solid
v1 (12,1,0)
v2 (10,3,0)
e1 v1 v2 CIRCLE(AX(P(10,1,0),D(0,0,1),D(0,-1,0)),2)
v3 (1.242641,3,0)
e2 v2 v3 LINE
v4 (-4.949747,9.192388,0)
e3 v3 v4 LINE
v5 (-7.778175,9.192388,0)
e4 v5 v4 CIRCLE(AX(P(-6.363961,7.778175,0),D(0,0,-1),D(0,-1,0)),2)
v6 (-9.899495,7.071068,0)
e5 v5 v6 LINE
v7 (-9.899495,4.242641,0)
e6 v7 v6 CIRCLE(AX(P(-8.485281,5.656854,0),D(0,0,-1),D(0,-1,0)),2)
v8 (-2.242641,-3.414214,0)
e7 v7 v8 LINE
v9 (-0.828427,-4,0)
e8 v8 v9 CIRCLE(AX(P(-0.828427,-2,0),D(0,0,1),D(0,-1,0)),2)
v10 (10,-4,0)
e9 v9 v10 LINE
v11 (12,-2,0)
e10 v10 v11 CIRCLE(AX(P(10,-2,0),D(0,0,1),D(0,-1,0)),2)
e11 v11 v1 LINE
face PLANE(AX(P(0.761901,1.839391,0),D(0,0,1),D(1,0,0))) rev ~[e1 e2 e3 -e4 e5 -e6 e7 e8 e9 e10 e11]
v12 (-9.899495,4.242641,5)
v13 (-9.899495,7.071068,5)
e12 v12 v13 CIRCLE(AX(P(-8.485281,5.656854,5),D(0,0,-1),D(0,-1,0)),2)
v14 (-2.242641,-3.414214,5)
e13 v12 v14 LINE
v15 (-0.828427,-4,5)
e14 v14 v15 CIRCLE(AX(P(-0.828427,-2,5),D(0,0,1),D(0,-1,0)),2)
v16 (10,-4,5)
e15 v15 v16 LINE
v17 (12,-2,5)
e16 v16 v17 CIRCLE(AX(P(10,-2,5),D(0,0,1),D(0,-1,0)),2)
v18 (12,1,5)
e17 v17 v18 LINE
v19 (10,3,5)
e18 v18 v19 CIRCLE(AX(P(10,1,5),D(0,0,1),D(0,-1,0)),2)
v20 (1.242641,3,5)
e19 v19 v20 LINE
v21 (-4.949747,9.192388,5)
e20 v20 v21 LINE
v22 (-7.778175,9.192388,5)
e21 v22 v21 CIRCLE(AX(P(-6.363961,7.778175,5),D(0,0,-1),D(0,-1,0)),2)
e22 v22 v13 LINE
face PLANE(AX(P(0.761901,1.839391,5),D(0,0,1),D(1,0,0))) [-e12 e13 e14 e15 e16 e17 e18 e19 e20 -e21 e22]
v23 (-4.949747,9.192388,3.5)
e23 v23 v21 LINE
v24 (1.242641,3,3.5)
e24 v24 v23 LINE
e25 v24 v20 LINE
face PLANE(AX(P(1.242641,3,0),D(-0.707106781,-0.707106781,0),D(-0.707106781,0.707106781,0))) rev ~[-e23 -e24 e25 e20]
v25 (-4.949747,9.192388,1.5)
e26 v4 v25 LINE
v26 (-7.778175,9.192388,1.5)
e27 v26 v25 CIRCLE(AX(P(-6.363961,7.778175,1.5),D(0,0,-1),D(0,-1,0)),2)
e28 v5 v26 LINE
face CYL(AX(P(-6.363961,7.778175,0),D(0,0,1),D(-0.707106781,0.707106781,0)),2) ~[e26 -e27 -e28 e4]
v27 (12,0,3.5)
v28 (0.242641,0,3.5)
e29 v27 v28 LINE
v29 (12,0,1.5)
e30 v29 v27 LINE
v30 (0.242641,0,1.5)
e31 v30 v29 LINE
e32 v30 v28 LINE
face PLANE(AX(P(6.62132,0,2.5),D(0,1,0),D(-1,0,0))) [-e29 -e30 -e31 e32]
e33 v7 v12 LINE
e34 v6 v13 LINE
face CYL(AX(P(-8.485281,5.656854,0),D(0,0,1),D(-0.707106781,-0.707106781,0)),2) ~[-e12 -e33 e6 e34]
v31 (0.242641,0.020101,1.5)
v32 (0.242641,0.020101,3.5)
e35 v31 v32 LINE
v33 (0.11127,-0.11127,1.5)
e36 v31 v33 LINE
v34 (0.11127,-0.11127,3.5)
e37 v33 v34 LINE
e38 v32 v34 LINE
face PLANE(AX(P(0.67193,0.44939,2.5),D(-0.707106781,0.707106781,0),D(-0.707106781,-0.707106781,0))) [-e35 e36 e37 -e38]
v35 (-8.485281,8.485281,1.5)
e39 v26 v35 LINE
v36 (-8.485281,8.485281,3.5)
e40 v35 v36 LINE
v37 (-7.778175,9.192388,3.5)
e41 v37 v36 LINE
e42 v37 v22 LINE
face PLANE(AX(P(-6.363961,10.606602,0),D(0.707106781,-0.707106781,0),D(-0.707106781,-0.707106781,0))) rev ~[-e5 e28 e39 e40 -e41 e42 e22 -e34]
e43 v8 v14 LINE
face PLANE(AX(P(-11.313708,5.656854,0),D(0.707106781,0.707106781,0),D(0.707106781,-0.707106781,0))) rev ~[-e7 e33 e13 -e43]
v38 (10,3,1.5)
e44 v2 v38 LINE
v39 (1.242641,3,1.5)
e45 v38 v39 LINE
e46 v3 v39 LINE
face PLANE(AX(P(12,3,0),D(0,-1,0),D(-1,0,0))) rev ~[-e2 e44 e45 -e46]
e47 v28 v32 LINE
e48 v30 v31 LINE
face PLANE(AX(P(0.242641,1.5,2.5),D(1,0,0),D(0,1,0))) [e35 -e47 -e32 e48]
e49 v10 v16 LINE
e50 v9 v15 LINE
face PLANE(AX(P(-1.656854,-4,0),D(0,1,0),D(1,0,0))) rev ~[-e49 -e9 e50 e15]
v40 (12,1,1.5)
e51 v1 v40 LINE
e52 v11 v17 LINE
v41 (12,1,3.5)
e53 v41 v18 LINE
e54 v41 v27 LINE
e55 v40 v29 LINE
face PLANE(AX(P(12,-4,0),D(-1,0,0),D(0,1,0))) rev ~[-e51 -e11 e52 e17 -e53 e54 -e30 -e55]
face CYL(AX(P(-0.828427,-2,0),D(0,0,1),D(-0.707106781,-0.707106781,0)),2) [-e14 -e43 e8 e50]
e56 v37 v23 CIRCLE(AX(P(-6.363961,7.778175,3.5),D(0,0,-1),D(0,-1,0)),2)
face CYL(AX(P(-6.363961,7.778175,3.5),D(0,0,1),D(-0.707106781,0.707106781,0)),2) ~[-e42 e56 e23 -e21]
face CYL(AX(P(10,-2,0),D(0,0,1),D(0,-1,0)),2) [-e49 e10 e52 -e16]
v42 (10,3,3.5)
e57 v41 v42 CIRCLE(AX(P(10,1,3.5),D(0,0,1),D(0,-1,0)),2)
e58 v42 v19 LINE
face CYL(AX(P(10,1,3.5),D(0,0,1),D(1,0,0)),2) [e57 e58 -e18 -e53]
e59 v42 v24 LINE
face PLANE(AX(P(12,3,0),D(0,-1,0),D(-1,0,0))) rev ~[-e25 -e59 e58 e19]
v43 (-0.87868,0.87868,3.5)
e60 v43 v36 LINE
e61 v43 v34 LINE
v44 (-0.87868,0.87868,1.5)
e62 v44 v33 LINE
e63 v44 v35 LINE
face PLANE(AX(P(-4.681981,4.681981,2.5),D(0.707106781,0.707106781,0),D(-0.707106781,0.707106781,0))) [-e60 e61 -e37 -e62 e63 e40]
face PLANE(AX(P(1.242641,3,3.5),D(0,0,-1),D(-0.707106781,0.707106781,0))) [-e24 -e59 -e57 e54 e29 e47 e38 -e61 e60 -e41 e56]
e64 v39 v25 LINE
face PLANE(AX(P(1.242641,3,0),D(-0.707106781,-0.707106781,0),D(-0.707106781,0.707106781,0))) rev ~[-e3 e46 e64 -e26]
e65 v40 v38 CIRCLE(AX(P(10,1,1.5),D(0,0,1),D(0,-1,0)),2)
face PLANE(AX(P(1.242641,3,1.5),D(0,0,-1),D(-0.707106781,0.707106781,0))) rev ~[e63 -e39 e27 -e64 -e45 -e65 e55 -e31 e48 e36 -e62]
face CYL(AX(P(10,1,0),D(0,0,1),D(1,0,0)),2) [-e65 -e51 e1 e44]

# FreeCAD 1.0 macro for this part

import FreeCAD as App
import Part
import Sketcher

V = App.Vector
Q = App.Units.Quantity


def edges_at(feature, points):
    """Names of the edges that pass closest to the given points."""
    edges = feature.Shape.Edges
    near = lambda p: min(range(len(edges)), key=lambda i: edges[i].distToShape(Part.Vertex(*p))[0])
    return sorted({f"Edge{near(p) + 1}" for p in points})

doc = App.newDocument("Part")
body = doc.addObject("PartDesign::Body", "Body")

# Sketch on XY plane
sketch1 = body.newObject("Sketcher::SketchObject", "Sketch")
sketch1.AttachmentSupport = (doc.getObject("XY_Plane"), [""])
sketch1.MapMode = "FlatFace"
sketch1.addGeometry(Part.LineSegment(V(-11, 6, 0), V(-2, -4, 0)), False)
sketch1.addGeometry(Part.LineSegment(V(-2, -4, 0), V(12, -4, 0)), False)
sketch1.addGeometry(Part.LineSegment(V(12, -4, 0), V(12, 3, 0)), False)
sketch1.addGeometry(Part.LineSegment(V(12, 3, 0), V(1, 3, 0)), False)
sketch1.addGeometry(Part.LineSegment(V(1, 3, 0), V(-6, 11, 0)), False)
sketch1.addGeometry(Part.LineSegment(V(-6, 11, 0), V(-11, 6, 0)), False)
sketch1.addConstraint(Sketcher.Constraint("Coincident", 0, 2, 1, 1))
sketch1.addConstraint(Sketcher.Constraint("Coincident", 1, 2, 2, 1))
sketch1.addConstraint(Sketcher.Constraint("Coincident", 2, 2, 3, 1))
sketch1.addConstraint(Sketcher.Constraint("Coincident", 3, 2, 4, 1))
sketch1.addConstraint(Sketcher.Constraint("Coincident", 4, 2, 5, 1))
sketch1.addConstraint(Sketcher.Constraint("Coincident", 5, 2, 0, 1))
sketch1.addConstraint(Sketcher.Constraint("Horizontal", 1))
sketch1.addConstraint(Sketcher.Constraint("Vertical", 2))
sketch1.addConstraint(Sketcher.Constraint("Horizontal", 3))
sketch1.addConstraint(Sketcher.Constraint("Parallel", 0, 4))
sketch1.addConstraint(Sketcher.Constraint("Perpendicular", 4, 5))
sketch1.addConstraint(Sketcher.Constraint("DistanceY", 2, 1, 2, 2, 7.0))
sketch1.addConstraint(Sketcher.Constraint("Angle", 0, Q("-45 deg")))
sketch1.addConstraint(Sketcher.Constraint("Distance", 5, 7.0))
sketch1.addConstraint(Sketcher.Constraint("DistanceY", 0, 2, -1, 1, 4.0))
sketch1.addConstraint(Sketcher.Constraint("DistanceX", -1, 1, 1, 2, 12.0))
sketch1.addConstraint(Sketcher.Constraint("DistanceX", 3, 2, 3, 1, 10.757359))
sketch1.addConstraint(Sketcher.Constraint("DistanceY", -1, 1, 4, 2, 10.606602))
pad1 = body.newObject("PartDesign::Pad", "Pad")
pad1.Profile = sketch1
pad1.Length = 5

# Sketch on an angled plane
sketch2 = body.newObject("Sketcher::SketchObject", "Sketch001")
sketch2.Placement = App.Placement(V(2.12132, 2.12132, 0), App.Rotation(V(-0.707106781, 0.707106781, 0), V(0, 0, 0.999999999), V(0.707106781, 0.707106781, 0), "ZXY"))
sketch2.addGeometry(Part.LineSegment(V(1.2, 3.5, 0), V(1.2, 1.5, 0)), False)
sketch2.addGeometry(Part.LineSegment(V(1.2, 1.5, 0), V(12, 1.5, 0)), False)
sketch2.addGeometry(Part.LineSegment(V(12, 1.5, 0), V(12, 3.5, 0)), False)
sketch2.addGeometry(Part.LineSegment(V(12, 3.5, 0), V(1.2, 3.5, 0)), False)
sketch2.addConstraint(Sketcher.Constraint("Coincident", 0, 2, 1, 1))
sketch2.addConstraint(Sketcher.Constraint("Coincident", 1, 2, 2, 1))
sketch2.addConstraint(Sketcher.Constraint("Coincident", 2, 2, 3, 1))
sketch2.addConstraint(Sketcher.Constraint("Coincident", 3, 2, 0, 1))
sketch2.addConstraint(Sketcher.Constraint("Vertical", 0))
sketch2.addConstraint(Sketcher.Constraint("Horizontal", 1))
sketch2.addConstraint(Sketcher.Constraint("Vertical", 2))
sketch2.addConstraint(Sketcher.Constraint("Horizontal", 3))
sketch2.addConstraint(Sketcher.Constraint("DistanceY", 0, 2, 0, 1, 2.0))
sketch2.addConstraint(Sketcher.Constraint("DistanceX", -1, 1, 1, 2, 12.0))
sketch2.addConstraint(Sketcher.Constraint("DistanceY", -1, 1, 0, 2, 1.5))
sketch2.addConstraint(Sketcher.Constraint("DistanceX", 1, 1, 1, 2, 10.757359))
pocket1 = body.newObject("PartDesign::Pocket", "Pocket")
pocket1.Profile = sketch2
pocket1.Length = 3

# Sketch on XZ plane
sketch3 = body.newObject("Sketcher::SketchObject", "Sketch002")
sketch3.AttachmentSupport = (doc.getObject("XZ_Plane"), [""])
sketch3.MapMode = "FlatFace"
sketch3.AttachmentOffset = App.Placement(V(0, 0, -3), App.Rotation())
sketch3.addGeometry(Part.LineSegment(V(12, 3.5, 0), V(12, 1.5, 0)), False)
sketch3.addGeometry(Part.LineSegment(V(12, 1.5, 0), V(1.2, 1.5, 0)), False)
sketch3.addGeometry(Part.LineSegment(V(1.2, 1.5, 0), V(1.2, 3.5, 0)), False)
sketch3.addGeometry(Part.LineSegment(V(1.2, 3.5, 0), V(12, 3.5, 0)), False)
sketch3.addConstraint(Sketcher.Constraint("Coincident", 0, 2, 1, 1))
sketch3.addConstraint(Sketcher.Constraint("Coincident", 1, 2, 2, 1))
sketch3.addConstraint(Sketcher.Constraint("Coincident", 2, 2, 3, 1))
sketch3.addConstraint(Sketcher.Constraint("Coincident", 3, 2, 0, 1))
sketch3.addConstraint(Sketcher.Constraint("Vertical", 0))
sketch3.addConstraint(Sketcher.Constraint("Horizontal", 1))
sketch3.addConstraint(Sketcher.Constraint("Vertical", 2))
sketch3.addConstraint(Sketcher.Constraint("Horizontal", 3))
sketch3.addConstraint(Sketcher.Constraint("DistanceY", 0, 2, 0, 1, 2.0))
sketch3.addConstraint(Sketcher.Constraint("DistanceX", -1, 1, 0, 2, 12.0))
sketch3.addConstraint(Sketcher.Constraint("DistanceY", -1, 1, 0, 2, 1.5))
sketch3.addConstraint(Sketcher.Constraint("DistanceX", 1, 2, 1, 1, 10.757359))
pocket2 = body.newObject("PartDesign::Pocket", "Pocket001")
pocket2.Profile = sketch3
pocket2.Length = 3
pocket2.Reversed = True

# Sketch on YZ plane
sketch4 = body.newObject("Sketcher::SketchObject", "Sketch003")
sketch4.AttachmentSupport = (doc.getObject("YZ_Plane"), [""])
sketch4.MapMode = "FlatFace"
sketch4.AttachmentOffset = App.Placement(V(0, 0, 1.242641), App.Rotation())
sketch4.addGeometry(Part.LineSegment(V(0, 3.5, 0), V(0, 1.5, 0)), False)
sketch4.addGeometry(Part.LineSegment(V(0, 1.5, 0), V(3, 1.5, 0)), False)
sketch4.addGeometry(Part.LineSegment(V(3, 1.5, 0), V(3, 3.5, 0)), False)
sketch4.addGeometry(Part.LineSegment(V(3, 3.5, 0), V(0, 3.5, 0)), False)
sketch4.addConstraint(Sketcher.Constraint("Coincident", 0, 2, 1, 1))
sketch4.addConstraint(Sketcher.Constraint("Coincident", 1, 2, 2, 1))
sketch4.addConstraint(Sketcher.Constraint("Coincident", 2, 2, 3, 1))
sketch4.addConstraint(Sketcher.Constraint("Coincident", 3, 2, 0, 1))
sketch4.addConstraint(Sketcher.Constraint("Vertical", 0))
sketch4.addConstraint(Sketcher.Constraint("Horizontal", 1))
sketch4.addConstraint(Sketcher.Constraint("Vertical", 2))
sketch4.addConstraint(Sketcher.Constraint("Horizontal", 3))
sketch4.addConstraint(Sketcher.Constraint("PointOnObject", 0, 2, -2))
sketch4.addConstraint(Sketcher.Constraint("DistanceX", 1, 1, 1, 2, 3.0))
sketch4.addConstraint(Sketcher.Constraint("DistanceY", 0, 2, 0, 1, 2.0))
sketch4.addConstraint(Sketcher.Constraint("DistanceY", -1, 1, 0, 2, 1.5))
pocket3 = body.newObject("PartDesign::Pocket", "Pocket002")
pocket3.Profile = sketch4
pocket3.Length = 1

# Sketch on an angled plane
sketch5 = body.newObject("Sketcher::SketchObject", "Sketch004")
sketch5.Placement = App.Placement(V(-0.87868, 0.87868, 0), App.Rotation(V(-0.707106781, -0.707106781, 0), V(0, 0, 0.999999999), V(-0.707106781, 0.707106781, 0), "ZXY"))
sketch5.addGeometry(Part.LineSegment(V(-1.6, 3.5, 0), V(-1.6, 1.5, 0)), False)
sketch5.addGeometry(Part.LineSegment(V(-1.6, 1.5, 0), V(0, 1.5, 0)), False)
sketch5.addGeometry(Part.LineSegment(V(0, 1.5, 0), V(0, 3.5, 0)), False)
sketch5.addGeometry(Part.LineSegment(V(0, 3.5, 0), V(-1.6, 3.5, 0)), False)
sketch5.addConstraint(Sketcher.Constraint("Coincident", 0, 2, 1, 1))
sketch5.addConstraint(Sketcher.Constraint("Coincident", 1, 2, 2, 1))
sketch5.addConstraint(Sketcher.Constraint("Coincident", 2, 2, 3, 1))
sketch5.addConstraint(Sketcher.Constraint("Coincident", 3, 2, 0, 1))
sketch5.addConstraint(Sketcher.Constraint("Vertical", 0))
sketch5.addConstraint(Sketcher.Constraint("Horizontal", 1))
sketch5.addConstraint(Sketcher.Constraint("Vertical", 2))
sketch5.addConstraint(Sketcher.Constraint("Horizontal", 3))
sketch5.addConstraint(Sketcher.Constraint("PointOnObject", 1, 2, -2))
sketch5.addConstraint(Sketcher.Constraint("DistanceY", 0, 2, 0, 1, 2.0))
sketch5.addConstraint(Sketcher.Constraint("DistanceY", -1, 1, 0, 2, 1.5))
sketch5.addConstraint(Sketcher.Constraint("DistanceX", 1, 1, 1, 2, 1.585786))
pocket4 = body.newObject("PartDesign::Pocket", "Pocket003")
pocket4.Profile = sketch5
pocket4.Length = 1.4
doc.recompute()

fillet = body.newObject("PartDesign::Fillet", "Fillet")
fillet.Base = (pocket4, edges_at(pocket4, [
    (-1.657, -4, 2.5),
    (-11.314, 5.657, 2.5),
    (12, -4, 2.5),
    (12, 3, 4.25),
    (12, 3, 0.75),
    (-6.364, 10.607, 4.25),
    (-6.364, 10.607, 0.75),
]))
fillet.Radius = 2

doc.recompute()
